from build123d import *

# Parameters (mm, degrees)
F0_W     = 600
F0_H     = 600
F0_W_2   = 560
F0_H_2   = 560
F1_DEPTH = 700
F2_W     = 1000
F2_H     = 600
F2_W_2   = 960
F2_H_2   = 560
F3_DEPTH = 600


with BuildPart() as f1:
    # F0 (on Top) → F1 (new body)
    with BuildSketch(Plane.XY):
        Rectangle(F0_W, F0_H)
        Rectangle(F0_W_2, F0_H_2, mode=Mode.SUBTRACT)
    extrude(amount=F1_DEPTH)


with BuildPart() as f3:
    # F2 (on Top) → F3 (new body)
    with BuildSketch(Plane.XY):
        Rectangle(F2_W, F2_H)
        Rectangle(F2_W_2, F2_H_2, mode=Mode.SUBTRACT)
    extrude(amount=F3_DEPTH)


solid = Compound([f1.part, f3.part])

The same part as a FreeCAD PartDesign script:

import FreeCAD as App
import Part
import Sketcher
Q = App.Units.Quantity


def add_polygon(sketch, points):
    """Adds a closed chain of lines whose ends are joined by coincident constraints."""
    first, n = sketch.GeometryCount, len(points)
    for a, b in zip(points, points[1:] + points[:1]):
        sketch.addGeometry(Part.LineSegment(App.Vector(*a, 0), App.Vector(*b, 0)), False)
    for i in range(n):
        sketch.addConstraint(Sketcher.Constraint("Coincident", first + i, 2, first + (i + 1) % n, 1))

doc = App.newDocument("Part")
body = doc.addObject("PartDesign::Body", "Body")

# Sketch on XY plane
sketch1 = body.newObject("Sketcher::SketchObject", "Sketch")
sketch1.AttachmentSupport = (doc.getObject("XY_Plane"), [""])
sketch1.MapMode = "FlatFace"
add_polygon(sketch1, [(-300, 300), (-300, -300), (300, -300), (300, 300)])  # lines 0-3
add_polygon(sketch1, [(280, -280), (-280, -280), (-280, 280), (280, 280)])  # lines 4-7
sketch1.addConstraint([
    Sketcher.Constraint("Vertical", 0),
    Sketcher.Constraint("Horizontal", 1),
    Sketcher.Constraint("Vertical", 2),
    Sketcher.Constraint("Horizontal", 3),
    Sketcher.Constraint("Horizontal", 4),
    Sketcher.Constraint("Vertical", 5),
    Sketcher.Constraint("Horizontal", 6),
    Sketcher.Constraint("Vertical", 7),
    Sketcher.Constraint("Symmetric", 0, 2, 2, 2, -1, 1),
    Sketcher.Constraint("Symmetric", 4, 2, 6, 2, -1, 1),
    Sketcher.Constraint("Equal", 3, 0),
    Sketcher.Constraint("Equal", 6, 5),
    Sketcher.Constraint("DistanceX", 1, 1, 1, 2, Q("600 mm")),
    Sketcher.Constraint("DistanceX", 4, 2, 4, 1, Q("560 mm")),
])
pad1 = body.newObject("PartDesign::Pad", "Pad")
pad1.Profile = sketch1
pad1.Length = 700
body2 = doc.addObject("PartDesign::Body", "Body001")

# Sketch on XY plane
sketch2 = body2.newObject("Sketcher::SketchObject", "Sketch001")
sketch2.AttachmentSupport = (doc.getObject("XY_Plane001"), [""])
sketch2.MapMode = "FlatFace"
add_polygon(sketch2, [(-500, 300), (-500, -300), (500, -300), (500, 300)])  # lines 0-3
add_polygon(sketch2, [(480, -280), (-480, -280), (-480, 280), (480, 280)])  # lines 4-7
sketch2.addConstraint([
    Sketcher.Constraint("Vertical", 0),
    Sketcher.Constraint("Horizontal", 1),
    Sketcher.Constraint("Vertical", 2),
    Sketcher.Constraint("Horizontal", 3),
    Sketcher.Constraint("Horizontal", 4),
    Sketcher.Constraint("Vertical", 5),
    Sketcher.Constraint("Horizontal", 6),
    Sketcher.Constraint("Vertical", 7),
    Sketcher.Constraint("Symmetric", 0, 2, 2, 2, -1, 1),
    Sketcher.Constraint("Symmetric", 4, 2, 6, 2, -1, 1),
    Sketcher.Constraint("DistanceX", 1, 1, 1, 2, Q("1000 mm")),
    Sketcher.Constraint("DistanceX", 4, 2, 4, 1, Q("960 mm")),
    Sketcher.Constraint("DistanceY", 0, 2, 0, 1, Q("600 mm")),
    Sketcher.Constraint("DistanceY", 5, 1, 5, 2, Q("560 mm")),
])
pad2 = body2.newObject("PartDesign::Pad", "Pad001")
pad2.Profile = sketch2
pad2.Length = 600

doc.recompute()
